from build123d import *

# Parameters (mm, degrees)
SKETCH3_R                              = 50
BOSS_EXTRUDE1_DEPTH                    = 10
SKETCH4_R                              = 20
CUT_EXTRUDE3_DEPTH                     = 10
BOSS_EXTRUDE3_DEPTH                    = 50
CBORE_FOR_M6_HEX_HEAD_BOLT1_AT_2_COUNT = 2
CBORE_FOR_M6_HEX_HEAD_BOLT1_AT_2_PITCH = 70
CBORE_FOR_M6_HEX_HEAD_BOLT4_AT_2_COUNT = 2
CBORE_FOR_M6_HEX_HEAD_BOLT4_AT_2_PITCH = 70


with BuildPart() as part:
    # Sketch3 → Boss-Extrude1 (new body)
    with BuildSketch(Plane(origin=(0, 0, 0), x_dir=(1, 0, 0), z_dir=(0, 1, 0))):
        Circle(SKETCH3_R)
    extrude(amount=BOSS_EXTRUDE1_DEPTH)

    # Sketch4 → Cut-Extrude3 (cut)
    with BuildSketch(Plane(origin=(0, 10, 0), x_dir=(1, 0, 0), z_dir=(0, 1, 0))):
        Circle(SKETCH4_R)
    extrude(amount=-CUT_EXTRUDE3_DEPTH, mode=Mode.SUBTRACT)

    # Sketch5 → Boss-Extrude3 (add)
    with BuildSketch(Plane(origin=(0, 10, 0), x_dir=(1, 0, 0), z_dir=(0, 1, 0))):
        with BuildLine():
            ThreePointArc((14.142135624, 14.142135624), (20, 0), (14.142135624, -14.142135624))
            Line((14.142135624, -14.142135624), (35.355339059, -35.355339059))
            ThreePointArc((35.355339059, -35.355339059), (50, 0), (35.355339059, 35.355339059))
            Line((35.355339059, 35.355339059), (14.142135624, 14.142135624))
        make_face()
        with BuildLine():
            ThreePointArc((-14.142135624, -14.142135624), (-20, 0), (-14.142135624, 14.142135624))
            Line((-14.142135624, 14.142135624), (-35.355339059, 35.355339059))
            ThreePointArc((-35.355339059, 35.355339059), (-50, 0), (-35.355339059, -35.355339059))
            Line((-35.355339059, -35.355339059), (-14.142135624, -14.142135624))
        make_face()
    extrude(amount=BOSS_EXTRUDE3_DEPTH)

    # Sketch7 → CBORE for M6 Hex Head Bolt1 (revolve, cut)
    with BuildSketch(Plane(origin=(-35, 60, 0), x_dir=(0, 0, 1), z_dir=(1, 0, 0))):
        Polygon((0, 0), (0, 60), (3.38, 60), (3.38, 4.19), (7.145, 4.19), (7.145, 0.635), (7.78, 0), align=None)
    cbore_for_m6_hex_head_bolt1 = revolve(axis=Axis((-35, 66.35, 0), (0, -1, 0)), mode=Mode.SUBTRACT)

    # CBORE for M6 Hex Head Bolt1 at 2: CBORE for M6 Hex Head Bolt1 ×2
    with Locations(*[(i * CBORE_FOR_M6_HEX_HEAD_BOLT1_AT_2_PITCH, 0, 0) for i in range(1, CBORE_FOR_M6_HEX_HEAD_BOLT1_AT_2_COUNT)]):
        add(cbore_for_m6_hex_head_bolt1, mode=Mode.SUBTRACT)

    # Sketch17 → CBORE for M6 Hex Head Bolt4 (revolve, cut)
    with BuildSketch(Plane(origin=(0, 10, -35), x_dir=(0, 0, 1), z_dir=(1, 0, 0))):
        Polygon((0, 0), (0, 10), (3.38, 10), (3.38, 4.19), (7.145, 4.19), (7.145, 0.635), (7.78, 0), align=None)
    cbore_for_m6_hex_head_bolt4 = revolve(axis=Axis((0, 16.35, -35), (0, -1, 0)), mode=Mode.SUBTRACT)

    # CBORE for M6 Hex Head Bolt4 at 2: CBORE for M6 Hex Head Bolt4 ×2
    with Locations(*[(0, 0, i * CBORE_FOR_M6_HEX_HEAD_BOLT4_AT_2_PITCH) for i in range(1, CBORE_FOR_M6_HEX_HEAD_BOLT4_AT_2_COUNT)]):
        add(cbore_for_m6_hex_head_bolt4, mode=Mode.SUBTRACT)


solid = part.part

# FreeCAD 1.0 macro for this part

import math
import FreeCAD as App
import Part
import Sketcher
Q = App.Units.Quantity


def add_polygon(sketch, points):
    """Adds a closed chain of lines whose ends are joined by coincident constraints."""
    first, n = sketch.GeometryCount, len(points)
    for a, b in zip(points, points[1:] + points[:1]):
        sketch.addGeometry(Part.LineSegment(App.Vector(*a, 0), App.Vector(*b, 0)), False)
    for i in range(n):
        sketch.addConstraint(Sketcher.Constraint("Coincident", first + i, 2, first + (i + 1) % n, 1))

doc = App.newDocument("Part")
params = doc.addObject("Spreadsheet::Sheet", "Params")
for row, (alias, value) in enumerate([
    ("sketch1_diameter", "100 mm"),
    ("pad1_length", "10 mm"),
    ("sketch2_diameter", "40 mm"),
    ("pocket1_length", "10 mm"),
    ("sketch3_radius", "20 mm"),
    ("sketch3_radius2", "50 mm"),
    ("pad2_length", "50 mm"),
    ("sketch4_width", "60 mm"),
    ("sketch4_width2", "55.81 mm"),
    ("sketch4_height", "7.78 mm"),
    ("sketch4_height2", "3.38 mm"),
    ("groove_angle", "360 deg"),
    ("linearpattern_pitch", "70 mm"),
    ("sketch5_width", "10 mm"),
    ("sketch5_width2", "5.81 mm"),
    ("sketch5_height", "7.78 mm"),
    ("sketch5_height2", "3.38 mm"),
    ("groove2_angle", "360 deg"),
    ("linearpattern2_pitch", "70 mm"),
], start=1):
    params.set(f"A{row}", alias)
    params.set(f"B{row}", "=" + value)
    params.setAlias(f"B{row}", alias)

body = doc.addObject("PartDesign::Body", "Body")

sketch1 = body.newObject("Sketcher::SketchObject", "Sketch")
sketch1.AttachmentSupport = (doc.getObject("XZ_Plane"), [""])
sketch1.MapMode = "FlatFace"
sketch1.addGeometry(Part.Circle(App.Vector(0, 0, 0), App.Vector(0, 0, 1), 50), False)
sketch1.addConstraint([
    Sketcher.Constraint("Coincident", 0, 3, -1, 1),
    Sketcher.Constraint("Diameter", 0, 100.0),
])
sketch1.setExpression("Constraints[1]", "Params.sketch1_diameter")
pad1 = body.newObject("PartDesign::Pad", "Pad")
pad1.Profile = sketch1
pad1.setExpression("Length", "Params.pad1_length")
pad1.Reversed = True

sketch2 = body.newObject("Sketcher::SketchObject", "Sketch001")
sketch2.AttachmentSupport = (doc.getObject("XZ_Plane"), [""])
sketch2.MapMode = "FlatFace"
sketch2.AttachmentOffset = App.Placement(App.Vector(0, 0, -10), App.Rotation())
sketch2.addGeometry(Part.Circle(App.Vector(0, 0, 0), App.Vector(0, 0, 1), 20), False)
sketch2.addConstraint([
    Sketcher.Constraint("Coincident", 0, 3, -1, 1),
    Sketcher.Constraint("Diameter", 0, 40.0),
])
sketch2.setExpression("Constraints[1]", "Params.sketch2_diameter")
pocket1 = body.newObject("PartDesign::Pocket", "Pocket")
pocket1.Profile = sketch2
pocket1.setExpression("Length", "Params.pocket1_length")
pocket1.Reversed = True

sketch3 = body.newObject("Sketcher::SketchObject", "Sketch002")
sketch3.AttachmentSupport = (doc.getObject("XZ_Plane"), [""])
sketch3.MapMode = "FlatFace"
sketch3.AttachmentOffset = App.Placement(App.Vector(0, 0, -10), App.Rotation())
sketch3.addGeometry([
    Part.ArcOfCircle(Part.Circle(App.Vector(0, 0, 0), App.Vector(0, 0, 1), 20), math.radians(-45), math.radians(45)),
    Part.LineSegment(App.Vector(14, 14, 0), App.Vector(35, 35, 0)),
    Part.ArcOfCircle(Part.Circle(App.Vector(0, 0, 0), App.Vector(0, 0, 1), 50), math.radians(-45), math.radians(45)),
    Part.LineSegment(App.Vector(35, -35, 0), App.Vector(14, -14, 0)),
    Part.ArcOfCircle(Part.Circle(App.Vector(0, 0, 0), App.Vector(0, 0, 1), 20), math.radians(135), math.radians(225)),
    Part.LineSegment(App.Vector(-14, -14, 0), App.Vector(-35, -35, 0)),
    Part.ArcOfCircle(Part.Circle(App.Vector(0, 0, 0), App.Vector(0, 0, 1), 50), math.radians(135), math.radians(225)),
    Part.LineSegment(App.Vector(-35, 35, 0), App.Vector(-14, 14, 0)),
], False)
sketch3.addConstraint([
    Sketcher.Constraint("Coincident", 0, 2, 1, 1),
    Sketcher.Constraint("Coincident", 1, 2, 2, 2),
    Sketcher.Constraint("Coincident", 2, 1, 3, 1),
    Sketcher.Constraint("Coincident", 3, 2, 0, 1),
    Sketcher.Constraint("Coincident", 4, 2, 5, 1),
    Sketcher.Constraint("Coincident", 5, 2, 6, 2),
    Sketcher.Constraint("Coincident", 6, 1, 7, 1),
    Sketcher.Constraint("Coincident", 7, 2, 4, 1),
    Sketcher.Constraint("Coincident", 0, 3, -1, 1),
    Sketcher.Constraint("Coincident", 2, 3, -1, 1),
    Sketcher.Constraint("Coincident", 4, 3, -1, 1),
    Sketcher.Constraint("Coincident", 6, 3, -1, 1),
    Sketcher.Constraint("Equal", 0, 4),
    Sketcher.Constraint("Equal", 2, 6),
    Sketcher.Constraint("Perpendicular", 1, 3),
    Sketcher.Constraint("Perpendicular", 3, 5),
    Sketcher.Constraint("Perpendicular", 5, 7),
    Sketcher.Constraint("Horizontal", 3, 2, 4, 2),
    Sketcher.Constraint("Horizontal", 2, 1, 5, 2),
    Sketcher.Constraint("Horizontal", 1, 2, 6, 1),
    Sketcher.Constraint("Vertical", 1, 2, 2, 1),
    Sketcher.Constraint("Radius", 0, 20.0),
    Sketcher.Constraint("Radius", 2, 50.0),
    Sketcher.Constraint("DistanceX", -1, 1, 1, 2, 35.355339),
])
sketch3.setExpression("Constraints[21]", "Params.sketch3_radius")
sketch3.setExpression("Constraints[22]", "Params.sketch3_radius2")
pad2 = body.newObject("PartDesign::Pad", "Pad001")
pad2.Profile = sketch3
pad2.setExpression("Length", "Params.pad2_length")
pad2.Reversed = True

sketch4 = body.newObject("Sketcher::SketchObject", "Sketch003")
sketch4.AttachmentSupport = (doc.getObject("YZ_Plane"), [""])
sketch4.MapMode = "FlatFace"
sketch4.AttachmentOffset = App.Placement(App.Vector(0, 0, -35), App.Rotation())
add_polygon(sketch4, [(0, 0), (60, 0), (60, 7.8), (59.4, 7.1), (55.8, 7.1), (55.8, 3.4), (0, 3.4)])
sketch4.addConstraint([
    Sketcher.Constraint("Horizontal", 0),
    Sketcher.Constraint("Vertical", 1),
    Sketcher.Constraint("Horizontal", 3),
    Sketcher.Constraint("Vertical", 4),
    Sketcher.Constraint("Horizontal", 5),
    Sketcher.Constraint("Vertical", 6),
    Sketcher.Constraint("Coincident", 6, 2, -1, 1),
    Sketcher.Constraint("DistanceX", 0, 1, 0, 2, 60.0),
    Sketcher.Constraint("Angle", 2, Q("-135 deg")),
    Sketcher.Constraint("DistanceX", 5, 2, 5, 1, 55.81),
    Sketcher.Constraint("DistanceY", 1, 1, 1, 2, 7.78),
    Sketcher.Constraint("DistanceY", 6, 2, 6, 1, 3.38),
    Sketcher.Constraint("DistanceX", 3, 2, 3, 1, 3.555),
])
sketch4.setExpression("Constraints[14]", "Params.sketch4_width")
sketch4.setExpression("Constraints[16]", "Params.sketch4_width2")
sketch4.setExpression("Constraints[17]", "Params.sketch4_height")
sketch4.setExpression("Constraints[18]", "Params.sketch4_height2")
groove = body.newObject("PartDesign::Groove", "Groove")
groove.Profile = sketch4
groove.ReferenceAxis = (sketch4, ["H_Axis"])
groove.setExpression("Angle", "Params.groove_angle")
doc.recompute()

linearpattern = body.newObject("PartDesign::LinearPattern", "LinearPattern")
linearpattern.Originals = [groove]
linearpattern.Direction = (doc.getObject("X_Axis"), [""])
linearpattern.Mode = "offset"
linearpattern.setExpression("Offset", "Params.linearpattern_pitch")
linearpattern.Occurrences = 2
body.Tip = linearpattern

sketch5 = body.newObject("Sketcher::SketchObject", "Sketch004")
sketch5.AttachmentSupport = (doc.getObject("YZ_Plane"), [""])
sketch5.MapMode = "FlatFace"
add_polygon(sketch5, [(0, -35), (10, -35), (10, -27.2), (9.4, -27.9), (5.8, -27.9), (5.8, -31.6), (0, -31.6)])
sketch5.addGeometry(Part.LineSegment(App.Vector(10, -35, 0), App.Vector(0, -35, 0)), True)
sketch5.addConstraint([
    Sketcher.Constraint("Horizontal", 0),
    Sketcher.Constraint("Vertical", 1),
    Sketcher.Constraint("Horizontal", 3),
    Sketcher.Constraint("Vertical", 4),
    Sketcher.Constraint("Horizontal", 5),
    Sketcher.Constraint("Vertical", 6),
    Sketcher.Constraint("Horizontal", 7),
    Sketcher.Constraint("Coincident", 7, 1, 0, 2),
    Sketcher.Constraint("PointOnObject", 5, 2, -2),
    Sketcher.Constraint("PointOnObject", 7, 2, -2),
    Sketcher.Constraint("DistanceX", 0, 1, 0, 2, 10.0),
    Sketcher.Constraint("Angle", 2, Q("-135 deg")),
    Sketcher.Constraint("DistanceY", 0, 2, -1, 1, 35.0),
    Sketcher.Constraint("DistanceX", 5, 2, 5, 1, 5.81),
    Sketcher.Constraint("DistanceY", 1, 1, 1, 2, 7.78),
    Sketcher.Constraint("DistanceY", 6, 2, 6, 1, 3.38),
    Sketcher.Constraint("DistanceX", 3, 2, 3, 1, 3.555),
])
sketch5.setExpression("Constraints[17]", "Params.sketch5_width")
sketch5.setExpression("Constraints[20]", "Params.sketch5_width2")
sketch5.setExpression("Constraints[21]", "Params.sketch5_height")
sketch5.setExpression("Constraints[22]", "Params.sketch5_height2")
groove2 = body.newObject("PartDesign::Groove", "Groove001")
groove2.Profile = sketch5
groove2.ReferenceAxis = (sketch5, ["Axis0"])
groove2.setExpression("Angle", "Params.groove2_angle")
doc.recompute()

linearpattern2 = body.newObject("PartDesign::LinearPattern", "LinearPattern001")
linearpattern2.Originals = [groove2]
linearpattern2.Direction = (doc.getObject("Z_Axis"), [""])
linearpattern2.Mode = "offset"
linearpattern2.setExpression("Offset", "Params.linearpattern2_pitch")
linearpattern2.Occurrences = 2
body.Tip = linearpattern2

doc.recompute()
